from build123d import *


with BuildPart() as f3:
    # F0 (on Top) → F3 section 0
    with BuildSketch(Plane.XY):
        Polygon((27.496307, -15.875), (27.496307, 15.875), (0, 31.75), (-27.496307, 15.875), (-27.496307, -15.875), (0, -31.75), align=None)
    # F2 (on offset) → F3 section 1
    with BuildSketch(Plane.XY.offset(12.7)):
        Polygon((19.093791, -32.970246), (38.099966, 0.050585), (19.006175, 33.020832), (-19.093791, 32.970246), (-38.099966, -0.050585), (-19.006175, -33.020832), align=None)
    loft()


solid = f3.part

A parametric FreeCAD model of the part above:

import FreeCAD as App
import Part
import Sketcher
Q = App.Units.Quantity


def add_polygon(sketch, points):
    """Adds a closed chain of lines whose ends are joined by coincident constraints."""
    first, n = sketch.GeometryCount, len(points)
    for a, b in zip(points, points[1:] + points[:1]):
        sketch.addGeometry(Part.LineSegment(App.Vector(*a, 0), App.Vector(*b, 0)), False)
    for i in range(n):
        sketch.addConstraint(Sketcher.Constraint("Coincident", first + i, 2, first + (i + 1) % n, 1))

doc = App.newDocument("Part")
body = doc.addObject("PartDesign::Body", "Body")

# Sketch on XY plane
sketch1 = body.newObject("Sketcher::SketchObject", "Sketch")
sketch1.AttachmentSupport = (doc.getObject("XY_Plane"), [""])
sketch1.MapMode = "FlatFace"
add_polygon(sketch1, [(27, -16), (27, 16), (0, 32), (-27, 16), (-27, -16), (0, -32)])  # lines 0-5
sketch1.addConstraint([
    Sketcher.Constraint("Vertical", 0),
    Sketcher.Constraint("Vertical", 3),
    Sketcher.Constraint("Symmetric", 0, 2, 3, 2, -1, 1),
    Sketcher.Constraint("Symmetric", 1, 2, 4, 2, -1, 1),
    Sketcher.Constraint("PointOnObject", 1, 2, -2),
    Sketcher.Constraint("Parallel", 2, 5),
    Sketcher.Constraint("Horizontal", 0, 2, 2, 2),
    Sketcher.Constraint("Angle", 1, Q("150 deg")),
    Sketcher.Constraint("DistanceY", 0, 1, 0, 2, Q("1.25 in")),
    Sketcher.Constraint("DistanceY", 4, 2, 1, 2, Q("2.5 in")),
])

# Sketch on XY plane
sketch2 = body.newObject("Sketcher::SketchObject", "Sketch001")
sketch2.AttachmentSupport = (doc.getObject("XY_Plane"), [""])
sketch2.MapMode = "FlatFace"
sketch2.AttachmentOffset = App.Placement(App.Vector(0, 0, 0.5 * 25.4), App.Rotation())
add_polygon(sketch2, [(19, -33), (38, 0), (19, 33), (-19, 33), (-38, 0), (-19, -33)])  # lines 0-5
sketch2.addConstraint([
    Sketcher.Constraint("Symmetric", 0, 2, 3, 2, -1, 1),
    Sketcher.Constraint("Symmetric", 1, 2, 4, 2, -1, 1),
    Sketcher.Constraint("Symmetric", 2, 2, 5, 2, -1, 1),
    Sketcher.Constraint("Equal", 0, 1),
    Sketcher.Constraint("Equal", 1, 2),
    Sketcher.Constraint("Distance", 0, Q("1.5 in")),
    Sketcher.Constraint("DistanceX", 2, 2, -1, 1, 19.093791),
    Sketcher.Constraint("DistanceX", 1, 2, 0, 2, 19.093791),
    Sketcher.Constraint("DistanceY", 0, 2, 2, 2, 32.919661),
])

additiveloft = body.newObject("PartDesign::AdditiveLoft", "AdditiveLoft")
additiveloft.Profile = sketch1
additiveloft.Sections = [sketch2]

doc.recompute()
